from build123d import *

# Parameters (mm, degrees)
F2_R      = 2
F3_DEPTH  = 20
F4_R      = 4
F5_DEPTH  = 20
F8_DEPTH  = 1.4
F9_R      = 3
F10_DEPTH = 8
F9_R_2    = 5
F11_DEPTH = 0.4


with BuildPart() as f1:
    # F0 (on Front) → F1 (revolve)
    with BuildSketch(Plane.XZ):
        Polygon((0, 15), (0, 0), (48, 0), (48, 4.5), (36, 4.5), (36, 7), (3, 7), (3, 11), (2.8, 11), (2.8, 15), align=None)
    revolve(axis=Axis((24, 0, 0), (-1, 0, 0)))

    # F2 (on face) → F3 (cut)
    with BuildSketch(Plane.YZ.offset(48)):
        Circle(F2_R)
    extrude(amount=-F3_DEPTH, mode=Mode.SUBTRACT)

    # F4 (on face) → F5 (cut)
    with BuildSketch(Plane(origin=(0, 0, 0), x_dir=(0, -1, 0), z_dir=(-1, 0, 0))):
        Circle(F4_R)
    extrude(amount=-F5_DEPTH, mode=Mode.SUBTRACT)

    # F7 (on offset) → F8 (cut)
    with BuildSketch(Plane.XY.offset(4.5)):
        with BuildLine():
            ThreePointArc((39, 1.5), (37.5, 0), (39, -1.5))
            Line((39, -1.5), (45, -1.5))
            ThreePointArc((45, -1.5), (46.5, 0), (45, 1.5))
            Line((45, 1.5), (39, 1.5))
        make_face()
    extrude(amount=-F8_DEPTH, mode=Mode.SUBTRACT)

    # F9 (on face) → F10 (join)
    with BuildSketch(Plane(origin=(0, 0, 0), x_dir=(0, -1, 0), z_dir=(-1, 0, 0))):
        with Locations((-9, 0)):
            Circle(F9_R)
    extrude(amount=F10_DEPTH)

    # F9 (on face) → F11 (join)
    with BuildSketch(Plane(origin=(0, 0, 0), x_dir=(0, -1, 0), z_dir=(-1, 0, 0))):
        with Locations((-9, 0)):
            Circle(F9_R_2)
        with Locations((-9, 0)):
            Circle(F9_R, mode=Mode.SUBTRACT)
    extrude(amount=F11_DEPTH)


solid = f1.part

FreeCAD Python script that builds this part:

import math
import FreeCAD as App
import Part
import Sketcher
Q = App.Units.Quantity


def add_polygon(sketch, points):
    """Adds a closed chain of lines whose ends are joined by coincident constraints."""
    first, n = sketch.GeometryCount, len(points)
    for a, b in zip(points, points[1:] + points[:1]):
        sketch.addGeometry(Part.LineSegment(App.Vector(*a, 0), App.Vector(*b, 0)), False)
    for i in range(n):
        sketch.addConstraint(Sketcher.Constraint("Coincident", first + i, 2, first + (i + 1) % n, 1))

doc = App.newDocument("Part")
body = doc.addObject("PartDesign::Body", "Body")

# Sketch on XZ plane
sketch1 = body.newObject("Sketcher::SketchObject", "Sketch")
sketch1.AttachmentSupport = (doc.getObject("XZ_Plane"), [""])
sketch1.MapMode = "FlatFace"
add_polygon(sketch1, [(0, 15), (0, 0), (48, 0), (48, 4.5), (36, 4.5), (36, 7), (3, 7), (3, 11), (2.8, 11), (2.8, 15)])  # lines 0-9
sketch1.addConstraint([
    Sketcher.Constraint("Vertical", 0),
    Sketcher.Constraint("Horizontal", 1),
    Sketcher.Constraint("Vertical", 2),
    Sketcher.Constraint("Horizontal", 3),
    Sketcher.Constraint("Vertical", 4),
    Sketcher.Constraint("Horizontal", 5),
    Sketcher.Constraint("Vertical", 6),
    Sketcher.Constraint("Horizontal", 7),
    Sketcher.Constraint("Vertical", 8),
    Sketcher.Constraint("Horizontal", 9),
    Sketcher.Constraint("Coincident", 0, 2, -1, 1),
    Sketcher.Constraint("Equal", 6, 8),
    Sketcher.Constraint("DistanceX", 1, 1, 1, 2, Q("48 mm")),
    Sketcher.Constraint("DistanceX", 3, 2, 3, 1, Q("12 mm")),
    Sketcher.Constraint("DistanceX", 5, 2, 5, 1, Q("33 mm")),
    Sketcher.Constraint("DistanceY", 0, 2, 0, 1, Q("15 mm")),
    Sketcher.Constraint("DistanceY", 6, 1, 6, 2, Q("4 mm")),
    Sketcher.Constraint("DistanceX", 7, 2, 7, 1, Q("0.2 mm")),
    Sketcher.Constraint("DistanceY", 2, 1, 2, 2, Q("4.5 mm")),
])
revolution = body.newObject("PartDesign::Revolution", "Revolution")
revolution.Profile = sketch1
revolution.ReferenceAxis = (sketch1, ["H_Axis"])
revolution.Angle = 360

# Sketch on YZ plane
sketch2 = body.newObject("Sketcher::SketchObject", "Sketch001")
sketch2.AttachmentSupport = (doc.getObject("YZ_Plane"), [""])
sketch2.MapMode = "FlatFace"
sketch2.AttachmentOffset = App.Placement(App.Vector(0, 0, 48), App.Rotation())
sketch2.addGeometry(Part.Circle(App.Vector(0, 0, 0), App.Vector(0, 0, 1), 2), False)
sketch2.addConstraint([
    Sketcher.Constraint("Coincident", 0, 3, -1, 1),
    Sketcher.Constraint("Diameter", 0, Q("4 mm")),
])
pocket1 = body.newObject("PartDesign::Pocket", "Pocket")
pocket1.Profile = sketch2
pocket1.Length = 20

# Sketch on YZ plane
sketch3 = body.newObject("Sketcher::SketchObject", "Sketch002")
sketch3.AttachmentSupport = (doc.getObject("YZ_Plane"), [""])
sketch3.MapMode = "FlatFace"
sketch3.addGeometry(Part.Circle(App.Vector(0, 0, 0), App.Vector(0, 0, 1), 4), False)
sketch3.addConstraint([
    Sketcher.Constraint("Coincident", 0, 3, -1, 1),
    Sketcher.Constraint("Diameter", 0, Q("8 mm")),
])
pocket2 = body.newObject("PartDesign::Pocket", "Pocket001")
pocket2.Profile = sketch3
pocket2.Length = 20
pocket2.Reversed = True

# Sketch on XY plane
sketch4 = body.newObject("Sketcher::SketchObject", "Sketch003")
sketch4.AttachmentSupport = (doc.getObject("XY_Plane"), [""])
sketch4.MapMode = "FlatFace"
sketch4.AttachmentOffset = App.Placement(App.Vector(0, 0, 4.5), App.Rotation())
sketch4.addGeometry([
    Part.ArcOfCircle(Part.Circle(App.Vector(39, 0, 0), App.Vector(0, 0, 1), 1.5), math.radians(90), math.radians(270)),
    Part.LineSegment(App.Vector(39, -1.5, 0), App.Vector(45, -1.5, 0)),
    Part.ArcOfCircle(Part.Circle(App.Vector(45, 0, 0), App.Vector(0, 0, 1), 1.5), math.radians(-90), math.radians(90)),
    Part.LineSegment(App.Vector(45, 1.5, 0), App.Vector(39, 1.5, 0)),
], False)
sketch4.addConstraint([
    Sketcher.Constraint("Tangent", 0, 2, 1, 1),
    Sketcher.Constraint("Tangent", 1, 2, 2, 1),
    Sketcher.Constraint("Tangent", 2, 2, 3, 1),
    Sketcher.Constraint("Tangent", 3, 2, 0, 1),
    Sketcher.Constraint("Horizontal", 1),
    Sketcher.Constraint("Horizontal", 3),
    Sketcher.Constraint("PointOnObject", 0, 3, -1),
    Sketcher.Constraint("Radius", 0, Q("1.5 mm")),
    Sketcher.Constraint("DistanceX", 1, 1, 1, 2, Q("6 mm")),
    Sketcher.Constraint("DistanceX", -1, 1, 0, 3, Q("39 mm")),
])
pocket3 = body.newObject("PartDesign::Pocket", "Pocket002")
pocket3.Profile = sketch4
pocket3.Length = 1.4

# Sketch on YZ plane
sketch5 = body.newObject("Sketcher::SketchObject", "Sketch004")
sketch5.AttachmentSupport = (doc.getObject("YZ_Plane"), [""])
sketch5.MapMode = "FlatFace"
sketch5.addGeometry(Part.Circle(App.Vector(9, 0, 0), App.Vector(0, 0, 1), 3), False)
sketch5.addConstraint([
    Sketcher.Constraint("PointOnObject", 0, 3, -1),
    Sketcher.Constraint("Diameter", 0, Q("6 mm")),
    Sketcher.Constraint("DistanceX", -1, 1, 0, 3, Q("9 mm")),
])
pad1 = body.newObject("PartDesign::Pad", "Pad")
pad1.Profile = sketch5
pad1.Length = 8
pad1.Reversed = True

# Sketch on YZ plane
sketch6 = body.newObject("Sketcher::SketchObject", "Sketch005")
sketch6.AttachmentSupport = (doc.getObject("YZ_Plane"), [""])
sketch6.MapMode = "FlatFace"
sketch6.addGeometry([
    Part.Circle(App.Vector(9, 0, 0), App.Vector(0, 0, 1), 5),
    Part.Circle(App.Vector(9, 0, 0), App.Vector(0, 0, 1), 3),
], False)
sketch6.addConstraint([
    Sketcher.Constraint("Coincident", 1, 3, 0, 3),
    Sketcher.Constraint("PointOnObject", 0, 3, -1),
    Sketcher.Constraint("Diameter", 0, Q("10 mm")),
    Sketcher.Constraint("Diameter", 1, Q("6 mm")),
    Sketcher.Constraint("DistanceX", -1, 1, 0, 3, Q("9 mm")),
])
pad2 = body.newObject("PartDesign::Pad", "Pad001")
pad2.Profile = sketch6
pad2.Length = 0.4
pad2.Reversed = True

doc.recompute()
